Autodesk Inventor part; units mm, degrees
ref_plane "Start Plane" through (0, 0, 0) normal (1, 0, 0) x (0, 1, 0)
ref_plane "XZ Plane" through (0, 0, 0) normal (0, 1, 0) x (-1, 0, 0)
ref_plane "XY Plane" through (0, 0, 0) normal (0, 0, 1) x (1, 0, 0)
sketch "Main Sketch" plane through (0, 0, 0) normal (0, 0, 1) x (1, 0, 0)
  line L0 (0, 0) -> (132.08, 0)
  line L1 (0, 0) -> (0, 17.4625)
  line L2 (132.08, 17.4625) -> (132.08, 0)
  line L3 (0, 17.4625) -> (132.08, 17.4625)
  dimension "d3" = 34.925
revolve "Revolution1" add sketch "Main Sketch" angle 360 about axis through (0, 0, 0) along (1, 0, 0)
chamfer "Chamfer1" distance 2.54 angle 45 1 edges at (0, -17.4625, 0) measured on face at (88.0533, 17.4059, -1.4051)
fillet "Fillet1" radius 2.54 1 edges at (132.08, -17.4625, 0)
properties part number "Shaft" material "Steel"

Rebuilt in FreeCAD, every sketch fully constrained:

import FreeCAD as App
import Part
import Sketcher
from FreeCAD import Vector
Q = App.Units.Quantity


def edges_at(feature, points):
    """Names of the edges that pass closest to the given points."""
    edges = feature.Shape.Edges
    near = lambda p: min(range(len(edges)), key=lambda i: edges[i].distToShape(Part.Vertex(*p))[0])
    return sorted({f"Edge{near(p) + 1}" for p in points})


def add_polygon(sketch, points):
    """Adds a closed chain of lines whose ends are joined by coincident constraints."""
    first, n = sketch.GeometryCount, len(points)
    for a, b in zip(points, points[1:] + points[:1]):
        sketch.addGeometry(Part.LineSegment(App.Vector(*a, 0), App.Vector(*b, 0)), False)
    for i in range(n):
        sketch.addConstraint(Sketcher.Constraint("Coincident", first + i, 2, first + (i + 1) % n, 1))

doc = App.newDocument("Part")
params = doc.addObject("Spreadsheet::Sheet", "Params")
for row, (alias, value) in enumerate([
    ("sketch1_width", "5.2 in"),
    ("sketch1_height", "0.6875 in"),
    ("revolution_angle", "360 deg"),
    ("chamfer_size", "0.1 in"),
    ("fillet_radius", "0.1 in"),
], start=1):
    params.set(f"A{row}", alias)
    params.set(f"B{row}", "=" + value)
    params.setAlias(f"B{row}", alias)

body = doc.addObject("PartDesign::Body", "Body")

sketch1 = body.newObject("Sketcher::SketchObject", "Sketch")
sketch1.AttachmentSupport = (doc.getObject("XY_Plane"), [""])
sketch1.MapMode = "FlatFace"
add_polygon(sketch1, [(0, 17), (0, 0), (132, 0), (132, 17)])
sketch1.addConstraint(Sketcher.Constraint("Vertical", 0))
sketch1.addConstraint(Sketcher.Constraint("Horizontal", 1))
sketch1.addConstraint(Sketcher.Constraint("Vertical", 2))
sketch1.addConstraint(Sketcher.Constraint("Horizontal", 3))
sketch1.addConstraint(Sketcher.Constraint("Coincident", 0, 2, -1, 1))
sketch1.addConstraint(Sketcher.Constraint("DistanceX", 1, 1, 1, 2, Q("5.2 in")))
sketch1.addConstraint(Sketcher.Constraint("DistanceY", 0, 2, 0, 1, Q("0.6875 in")))
sketch1.setExpression("Constraints[9]", "Params.sketch1_width")
sketch1.setExpression("Constraints[10]", "Params.sketch1_height")
revolution = body.newObject("PartDesign::Revolution", "Revolution")
revolution.Profile = sketch1
revolution.ReferenceAxis = (sketch1, ["H_Axis"])
revolution.setExpression("Angle", "Params.revolution_angle")
doc.recompute()

chamfer = body.newObject("PartDesign::Chamfer", "Chamfer")
chamfer.Base = (revolution, edges_at(revolution, [(0, -17.462, 0)]))
chamfer.setExpression("Size", "Params.chamfer_size")
doc.recompute()

fillet = body.newObject("PartDesign::Fillet", "Fillet")
fillet.Base = (chamfer, edges_at(chamfer, [(132.08, -17.462, 0)]))
fillet.setExpression("Radius", "Params.fillet_radius")

doc.recompute()
